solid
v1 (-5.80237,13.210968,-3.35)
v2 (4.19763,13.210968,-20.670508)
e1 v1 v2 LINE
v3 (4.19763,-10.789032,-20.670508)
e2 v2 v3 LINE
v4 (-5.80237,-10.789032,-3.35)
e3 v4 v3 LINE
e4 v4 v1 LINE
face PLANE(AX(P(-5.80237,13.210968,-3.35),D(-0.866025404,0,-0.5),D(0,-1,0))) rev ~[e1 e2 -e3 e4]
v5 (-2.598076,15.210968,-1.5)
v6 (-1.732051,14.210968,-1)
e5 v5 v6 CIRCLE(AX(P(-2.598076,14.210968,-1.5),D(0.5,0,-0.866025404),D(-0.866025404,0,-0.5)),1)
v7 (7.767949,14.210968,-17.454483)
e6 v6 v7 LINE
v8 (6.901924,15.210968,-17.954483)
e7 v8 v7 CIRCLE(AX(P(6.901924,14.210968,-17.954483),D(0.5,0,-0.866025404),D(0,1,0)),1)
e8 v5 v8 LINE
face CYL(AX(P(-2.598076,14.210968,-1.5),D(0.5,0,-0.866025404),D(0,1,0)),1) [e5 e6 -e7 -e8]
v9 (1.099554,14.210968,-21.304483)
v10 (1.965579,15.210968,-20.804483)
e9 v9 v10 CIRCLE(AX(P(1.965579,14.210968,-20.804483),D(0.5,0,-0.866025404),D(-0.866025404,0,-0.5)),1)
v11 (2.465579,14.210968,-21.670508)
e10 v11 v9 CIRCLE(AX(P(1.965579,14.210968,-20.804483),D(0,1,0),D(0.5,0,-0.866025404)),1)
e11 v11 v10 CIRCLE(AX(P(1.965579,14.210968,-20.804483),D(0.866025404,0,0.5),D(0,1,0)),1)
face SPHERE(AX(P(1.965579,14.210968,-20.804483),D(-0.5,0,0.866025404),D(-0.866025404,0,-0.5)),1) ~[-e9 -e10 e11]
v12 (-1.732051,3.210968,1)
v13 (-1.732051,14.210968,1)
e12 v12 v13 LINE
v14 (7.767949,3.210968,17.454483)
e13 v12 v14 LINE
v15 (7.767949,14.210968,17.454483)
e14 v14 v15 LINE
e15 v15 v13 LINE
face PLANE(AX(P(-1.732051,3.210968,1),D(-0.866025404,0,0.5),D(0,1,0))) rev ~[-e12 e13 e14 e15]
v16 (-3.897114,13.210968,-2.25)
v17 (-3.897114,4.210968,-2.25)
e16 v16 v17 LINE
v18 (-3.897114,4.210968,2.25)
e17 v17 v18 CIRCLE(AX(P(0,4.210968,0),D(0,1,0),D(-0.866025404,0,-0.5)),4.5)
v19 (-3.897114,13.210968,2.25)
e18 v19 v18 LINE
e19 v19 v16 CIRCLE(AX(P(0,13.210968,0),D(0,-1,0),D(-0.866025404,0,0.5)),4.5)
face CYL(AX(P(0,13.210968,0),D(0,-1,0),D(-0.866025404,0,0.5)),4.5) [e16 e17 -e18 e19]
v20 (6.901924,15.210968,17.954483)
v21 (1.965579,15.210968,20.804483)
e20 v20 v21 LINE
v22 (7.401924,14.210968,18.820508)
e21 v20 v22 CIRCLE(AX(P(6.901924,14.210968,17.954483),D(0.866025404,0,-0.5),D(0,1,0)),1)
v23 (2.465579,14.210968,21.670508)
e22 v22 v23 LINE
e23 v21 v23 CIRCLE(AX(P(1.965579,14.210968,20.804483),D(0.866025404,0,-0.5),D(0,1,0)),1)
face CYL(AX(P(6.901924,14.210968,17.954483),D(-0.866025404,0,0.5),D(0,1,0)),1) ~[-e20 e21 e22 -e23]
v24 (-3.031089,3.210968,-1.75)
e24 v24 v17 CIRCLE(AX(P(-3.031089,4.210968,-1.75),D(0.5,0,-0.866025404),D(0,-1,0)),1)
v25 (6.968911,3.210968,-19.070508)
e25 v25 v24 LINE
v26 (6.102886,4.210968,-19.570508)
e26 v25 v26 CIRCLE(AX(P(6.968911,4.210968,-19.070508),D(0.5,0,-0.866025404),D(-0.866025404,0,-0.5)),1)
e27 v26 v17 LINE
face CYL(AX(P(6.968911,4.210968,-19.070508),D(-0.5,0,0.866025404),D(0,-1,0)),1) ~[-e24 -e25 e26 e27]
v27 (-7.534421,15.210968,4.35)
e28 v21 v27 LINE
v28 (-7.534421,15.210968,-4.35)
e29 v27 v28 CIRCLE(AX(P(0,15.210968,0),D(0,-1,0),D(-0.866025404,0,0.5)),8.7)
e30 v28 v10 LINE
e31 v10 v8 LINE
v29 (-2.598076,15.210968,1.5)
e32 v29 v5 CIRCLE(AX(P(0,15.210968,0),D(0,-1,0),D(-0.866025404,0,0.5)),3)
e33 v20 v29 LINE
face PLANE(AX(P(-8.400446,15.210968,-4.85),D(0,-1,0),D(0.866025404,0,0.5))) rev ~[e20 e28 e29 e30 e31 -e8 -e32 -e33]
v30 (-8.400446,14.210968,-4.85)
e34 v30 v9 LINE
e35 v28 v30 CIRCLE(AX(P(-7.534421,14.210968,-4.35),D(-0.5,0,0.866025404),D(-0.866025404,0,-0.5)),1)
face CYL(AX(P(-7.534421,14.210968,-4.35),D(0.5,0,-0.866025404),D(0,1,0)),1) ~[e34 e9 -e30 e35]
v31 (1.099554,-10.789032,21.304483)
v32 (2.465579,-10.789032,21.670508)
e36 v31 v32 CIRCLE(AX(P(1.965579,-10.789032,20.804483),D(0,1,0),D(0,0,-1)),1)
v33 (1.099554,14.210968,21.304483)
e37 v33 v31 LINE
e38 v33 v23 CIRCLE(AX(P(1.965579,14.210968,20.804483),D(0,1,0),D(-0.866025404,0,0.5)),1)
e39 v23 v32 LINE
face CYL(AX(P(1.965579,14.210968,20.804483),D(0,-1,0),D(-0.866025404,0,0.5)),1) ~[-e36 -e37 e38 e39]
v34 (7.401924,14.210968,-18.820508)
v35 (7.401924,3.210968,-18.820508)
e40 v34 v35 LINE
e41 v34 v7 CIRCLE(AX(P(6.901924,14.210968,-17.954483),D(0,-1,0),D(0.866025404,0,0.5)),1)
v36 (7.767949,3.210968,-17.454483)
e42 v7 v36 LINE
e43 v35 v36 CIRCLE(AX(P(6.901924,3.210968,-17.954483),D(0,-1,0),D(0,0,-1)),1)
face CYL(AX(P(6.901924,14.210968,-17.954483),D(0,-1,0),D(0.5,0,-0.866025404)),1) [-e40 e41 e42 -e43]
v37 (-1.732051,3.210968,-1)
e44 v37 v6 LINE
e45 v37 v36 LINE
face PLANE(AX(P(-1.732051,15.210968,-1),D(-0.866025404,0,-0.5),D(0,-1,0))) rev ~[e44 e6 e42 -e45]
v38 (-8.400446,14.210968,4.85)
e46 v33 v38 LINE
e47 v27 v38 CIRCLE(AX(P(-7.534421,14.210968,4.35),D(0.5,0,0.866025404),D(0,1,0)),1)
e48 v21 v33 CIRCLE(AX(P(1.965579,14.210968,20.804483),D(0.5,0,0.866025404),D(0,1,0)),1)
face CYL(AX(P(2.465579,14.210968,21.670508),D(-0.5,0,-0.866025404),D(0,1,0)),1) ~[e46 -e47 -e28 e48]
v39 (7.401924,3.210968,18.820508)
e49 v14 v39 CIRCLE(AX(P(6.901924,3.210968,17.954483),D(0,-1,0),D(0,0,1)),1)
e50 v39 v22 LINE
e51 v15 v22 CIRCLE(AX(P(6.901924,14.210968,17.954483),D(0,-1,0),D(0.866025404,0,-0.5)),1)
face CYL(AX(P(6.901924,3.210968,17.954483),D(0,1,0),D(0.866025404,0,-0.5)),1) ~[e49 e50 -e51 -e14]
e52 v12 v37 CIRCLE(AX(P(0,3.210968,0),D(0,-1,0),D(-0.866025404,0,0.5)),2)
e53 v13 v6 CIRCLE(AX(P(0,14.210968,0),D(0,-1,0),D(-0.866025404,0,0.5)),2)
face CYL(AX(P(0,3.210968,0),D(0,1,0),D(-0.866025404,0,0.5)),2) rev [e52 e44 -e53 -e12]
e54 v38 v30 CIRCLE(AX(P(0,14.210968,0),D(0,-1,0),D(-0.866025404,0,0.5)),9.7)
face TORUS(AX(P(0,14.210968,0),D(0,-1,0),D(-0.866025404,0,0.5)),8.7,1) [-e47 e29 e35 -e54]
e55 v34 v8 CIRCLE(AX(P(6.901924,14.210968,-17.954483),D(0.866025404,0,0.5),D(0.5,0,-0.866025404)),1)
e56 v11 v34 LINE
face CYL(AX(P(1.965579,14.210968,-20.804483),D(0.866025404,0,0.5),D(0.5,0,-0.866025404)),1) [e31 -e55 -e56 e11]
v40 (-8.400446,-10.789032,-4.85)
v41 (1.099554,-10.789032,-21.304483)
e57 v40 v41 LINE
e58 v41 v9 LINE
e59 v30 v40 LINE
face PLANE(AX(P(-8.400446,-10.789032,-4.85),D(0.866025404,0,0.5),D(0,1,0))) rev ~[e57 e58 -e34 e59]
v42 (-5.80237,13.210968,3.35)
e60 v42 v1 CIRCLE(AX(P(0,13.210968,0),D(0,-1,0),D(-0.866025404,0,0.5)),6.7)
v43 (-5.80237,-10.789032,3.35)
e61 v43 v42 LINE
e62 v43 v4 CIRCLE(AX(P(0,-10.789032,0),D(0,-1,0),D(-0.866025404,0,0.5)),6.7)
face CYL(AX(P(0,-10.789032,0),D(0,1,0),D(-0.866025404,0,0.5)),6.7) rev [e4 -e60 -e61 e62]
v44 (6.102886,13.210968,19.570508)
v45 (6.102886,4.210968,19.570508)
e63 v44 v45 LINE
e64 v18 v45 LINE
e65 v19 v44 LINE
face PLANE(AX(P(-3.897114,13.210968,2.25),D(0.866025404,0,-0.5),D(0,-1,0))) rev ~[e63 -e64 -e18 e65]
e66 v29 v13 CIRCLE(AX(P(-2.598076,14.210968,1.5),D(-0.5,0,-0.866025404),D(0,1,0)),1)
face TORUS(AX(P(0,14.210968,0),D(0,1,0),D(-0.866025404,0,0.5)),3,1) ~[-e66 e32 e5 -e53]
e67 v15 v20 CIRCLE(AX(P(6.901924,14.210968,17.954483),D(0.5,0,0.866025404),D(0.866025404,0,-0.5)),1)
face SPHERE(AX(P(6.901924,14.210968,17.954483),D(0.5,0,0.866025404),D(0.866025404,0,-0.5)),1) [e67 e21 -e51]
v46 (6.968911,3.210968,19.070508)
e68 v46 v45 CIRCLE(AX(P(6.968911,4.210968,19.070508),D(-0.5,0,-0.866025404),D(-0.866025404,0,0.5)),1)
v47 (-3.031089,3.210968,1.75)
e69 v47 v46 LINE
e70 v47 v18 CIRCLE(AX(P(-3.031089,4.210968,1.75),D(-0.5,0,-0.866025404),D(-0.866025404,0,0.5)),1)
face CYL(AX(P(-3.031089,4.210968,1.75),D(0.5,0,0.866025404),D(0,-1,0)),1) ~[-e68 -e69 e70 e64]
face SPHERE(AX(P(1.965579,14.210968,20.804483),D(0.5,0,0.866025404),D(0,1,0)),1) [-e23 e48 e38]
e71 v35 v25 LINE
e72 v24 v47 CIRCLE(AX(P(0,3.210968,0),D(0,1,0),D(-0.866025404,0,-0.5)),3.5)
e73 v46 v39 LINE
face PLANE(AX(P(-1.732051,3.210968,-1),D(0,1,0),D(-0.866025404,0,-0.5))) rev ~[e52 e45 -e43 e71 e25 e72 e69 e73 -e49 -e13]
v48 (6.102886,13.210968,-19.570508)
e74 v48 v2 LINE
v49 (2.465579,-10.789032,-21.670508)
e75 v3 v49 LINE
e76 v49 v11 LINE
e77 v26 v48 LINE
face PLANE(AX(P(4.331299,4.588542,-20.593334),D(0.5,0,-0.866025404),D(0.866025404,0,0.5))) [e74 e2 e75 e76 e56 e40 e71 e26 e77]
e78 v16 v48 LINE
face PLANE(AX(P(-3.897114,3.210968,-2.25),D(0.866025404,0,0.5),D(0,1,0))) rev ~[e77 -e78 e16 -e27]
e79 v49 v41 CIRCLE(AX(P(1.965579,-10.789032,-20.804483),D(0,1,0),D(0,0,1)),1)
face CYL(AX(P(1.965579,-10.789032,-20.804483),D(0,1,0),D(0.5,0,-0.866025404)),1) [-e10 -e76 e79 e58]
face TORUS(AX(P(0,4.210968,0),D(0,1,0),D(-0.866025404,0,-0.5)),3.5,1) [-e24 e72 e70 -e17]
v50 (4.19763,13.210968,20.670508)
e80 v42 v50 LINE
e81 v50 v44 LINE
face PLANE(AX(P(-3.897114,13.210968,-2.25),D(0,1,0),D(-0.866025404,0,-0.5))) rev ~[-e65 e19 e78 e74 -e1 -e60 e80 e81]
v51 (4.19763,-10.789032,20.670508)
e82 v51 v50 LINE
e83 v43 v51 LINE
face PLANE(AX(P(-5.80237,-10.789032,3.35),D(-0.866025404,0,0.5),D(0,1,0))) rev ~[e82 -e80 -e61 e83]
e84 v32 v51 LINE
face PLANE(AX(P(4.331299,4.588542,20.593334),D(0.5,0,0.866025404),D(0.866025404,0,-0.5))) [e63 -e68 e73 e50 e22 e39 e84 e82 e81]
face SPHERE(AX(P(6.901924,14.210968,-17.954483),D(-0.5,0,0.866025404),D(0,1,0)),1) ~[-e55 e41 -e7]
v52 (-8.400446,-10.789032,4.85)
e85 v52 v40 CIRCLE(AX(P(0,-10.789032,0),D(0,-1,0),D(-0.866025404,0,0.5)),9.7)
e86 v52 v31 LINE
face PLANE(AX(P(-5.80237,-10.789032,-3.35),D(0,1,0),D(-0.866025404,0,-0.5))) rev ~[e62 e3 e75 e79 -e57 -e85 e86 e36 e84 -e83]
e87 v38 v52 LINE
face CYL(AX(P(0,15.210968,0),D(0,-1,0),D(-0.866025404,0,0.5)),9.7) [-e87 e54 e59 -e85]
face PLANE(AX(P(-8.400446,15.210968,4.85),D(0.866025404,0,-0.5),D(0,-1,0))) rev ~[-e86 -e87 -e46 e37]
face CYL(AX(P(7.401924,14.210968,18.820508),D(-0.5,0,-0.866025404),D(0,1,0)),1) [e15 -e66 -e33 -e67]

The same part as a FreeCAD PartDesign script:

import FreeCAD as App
import Part
import Sketcher

V = App.Vector


def edges_at(feature, points):
    """Names of the edges that pass closest to the given points."""
    edges = feature.Shape.Edges
    near = lambda p: min(range(len(edges)), key=lambda i: edges[i].distToShape(Part.Vertex(*p))[0])
    return sorted({f"Edge{near(p) + 1}" for p in points})

doc = App.newDocument("Part")
params = doc.addObject("Spreadsheet::Sheet", "Params")
for row, (alias, value) in enumerate([
    ("sketch1_width", "3 mm"),
    ("sketch1_height", "26 mm"),
    ("sketch1_height2", "24 mm"),
    ("sketch1_height3", "10 mm"),
    ("sketch1_width2", "2.2 mm"),
    ("revolution_angle", "60 deg"),
    ("sketch2_width", "3 mm"),
    ("sketch2_height", "26 mm"),
    ("sketch2_height2", "24 mm"),
    ("sketch2_height3", "10 mm"),
    ("sketch2_width2", "7.7 mm"),
    ("pad1_length", "20 mm"),
    ("sketch3_width", "3 mm"),
    ("sketch3_height", "12 mm"),
    ("sketch3_height2", "10 mm"),
    ("sketch3_height3", "24 mm"),
    ("sketch3_width2", "2.5 mm"),
    ("pad2_length", "20 mm"),
    ("fillet_radius", "1 mm"),
    ("fillet2_radius", "1 mm"),
    ("fillet3_radius", "1 mm"),
    ("fillet4_radius", "1 mm"),
], start=1):
    params.set(f"A{row}", alias)
    params.set(f"B{row}", "=" + value)
    params.setAlias(f"B{row}", alias)

body = doc.addObject("PartDesign::Body", "Body")

# Sketch on an angled plane
sketch1 = body.newObject("Sketcher::SketchObject", "Sketch")
sketch1.Placement = App.Placement(V(0, 0, 0), App.Rotation(V(0.866025404, 0, -0.5), V(0, 1, 0), V(0.5, 0, 0.866025404), "ZXY"))
sketch1.addGeometry([
    Part.LineSegment(V(-9.7, 15.210968, 0), V(-9.7, -10.789032, 0)),  # 0
    Part.LineSegment(V(-9.7, -10.789032, 0), V(-6.7, -10.789032, 0)),  # 1
    Part.LineSegment(V(-6.7, -10.789032, 0), V(-6.7, 13.210968, 0)),  # 2
    Part.LineSegment(V(-6.7, 13.210968, 0), V(-4.5, 13.210968, 0)),  # 3
    Part.LineSegment(V(-4.5, 13.210968, 0), V(-4.5, 3.210968, 0)),  # 4
    Part.LineSegment(V(-4.5, 3.210968, 0), V(-2, 3.210968, 0)),  # 5
    Part.LineSegment(V(-2, 3.210968, 0), V(-2, 15.210968, 0)),  # 6
    Part.LineSegment(V(-2, 15.210968, 0), V(-9.7, 15.210968, 0)),  # 7
], False)
sketch1.addConstraint([
    Sketcher.Constraint("Coincident", 0, 2, 1, 1),
    Sketcher.Constraint("Coincident", 1, 2, 2, 1),
    Sketcher.Constraint("Coincident", 2, 2, 3, 1),
    Sketcher.Constraint("Coincident", 3, 2, 4, 1),
    Sketcher.Constraint("Coincident", 4, 2, 5, 1),
    Sketcher.Constraint("Coincident", 5, 2, 6, 1),
    Sketcher.Constraint("Coincident", 6, 2, 7, 1),
    Sketcher.Constraint("Coincident", 7, 2, 0, 1),
    Sketcher.Constraint("Vertical", 0),
    Sketcher.Constraint("Horizontal", 1),
    Sketcher.Constraint("Vertical", 2),
    Sketcher.Constraint("Horizontal", 3),
    Sketcher.Constraint("Vertical", 4),
    Sketcher.Constraint("Horizontal", 5),
    Sketcher.Constraint("Vertical", 6),
    Sketcher.Constraint("Horizontal", 7),
    Sketcher.Constraint("DistanceX", 1, 1, 1, 2, 3.0),
    Sketcher.Constraint("DistanceY", 0, 2, 0, 1, 26.0),
    Sketcher.Constraint("DistanceY", 2, 1, 2, 2, 24.0),
    Sketcher.Constraint("DistanceY", 4, 2, 4, 1, 10.0),
    Sketcher.Constraint("DistanceX", 3, 1, 3, 2, 2.2),
    Sketcher.Constraint("DistanceX", 5, 1, 5, 2, 2.5),
    Sketcher.Constraint("DistanceX", 5, 2, -1, 1, 2.0),
    Sketcher.Constraint("DistanceY", 0, 2, -1, 1, 10.789032),
])
sketch1.setExpression("Constraints[16]", "Params.sketch1_width")
sketch1.setExpression("Constraints[17]", "Params.sketch1_height")
sketch1.setExpression("Constraints[18]", "Params.sketch1_height2")
sketch1.setExpression("Constraints[19]", "Params.sketch1_height3")
sketch1.setExpression("Constraints[20]", "Params.sketch1_width2")
revolution = body.newObject("PartDesign::Revolution", "Revolution")
revolution.Profile = sketch1
revolution.ReferenceAxis = (sketch1, ["V_Axis"])
revolution.setExpression("Angle", "Params.revolution_angle")
revolution.Reversed = True

# Sketch on an angled plane
sketch2 = body.newObject("Sketcher::SketchObject", "Sketch001")
sketch2.Placement = App.Placement(V(0, 0, 0), App.Rotation(V(0.866025404, 0, -0.5), V(0, 1, 0), V(0.5, 0, 0.866025404), "ZXY"))
sketch2.addGeometry([
    Part.LineSegment(V(-2, 15.210968, 0), V(-9.7, 15.210968, 0)),  # 0
    Part.LineSegment(V(-9.7, 15.210968, 0), V(-9.7, -10.789032, 0)),  # 1
    Part.LineSegment(V(-9.7, -10.789032, 0), V(-6.7, -10.789032, 0)),  # 2
    Part.LineSegment(V(-6.7, -10.789032, 0), V(-6.7, 13.210968, 0)),  # 3
    Part.LineSegment(V(-6.7, 13.210968, 0), V(-4.5, 13.210968, 0)),  # 4
    Part.LineSegment(V(-4.5, 13.210968, 0), V(-4.5, 3.210968, 0)),  # 5
    Part.LineSegment(V(-4.5, 3.210968, 0), V(-2, 3.210968, 0)),  # 6
    Part.LineSegment(V(-2, 3.210968, 0), V(-2, 15.210968, 0)),  # 7
], False)
sketch2.addConstraint([
    Sketcher.Constraint("Coincident", 0, 2, 1, 1),
    Sketcher.Constraint("Coincident", 1, 2, 2, 1),
    Sketcher.Constraint("Coincident", 2, 2, 3, 1),
    Sketcher.Constraint("Coincident", 3, 2, 4, 1),
    Sketcher.Constraint("Coincident", 4, 2, 5, 1),
    Sketcher.Constraint("Coincident", 5, 2, 6, 1),
    Sketcher.Constraint("Coincident", 6, 2, 7, 1),
    Sketcher.Constraint("Coincident", 7, 2, 0, 1),
    Sketcher.Constraint("Horizontal", 0),
    Sketcher.Constraint("Vertical", 1),
    Sketcher.Constraint("Horizontal", 2),
    Sketcher.Constraint("Vertical", 3),
    Sketcher.Constraint("Horizontal", 4),
    Sketcher.Constraint("Vertical", 5),
    Sketcher.Constraint("Horizontal", 6),
    Sketcher.Constraint("Vertical", 7),
    Sketcher.Constraint("DistanceX", 2, 1, 2, 2, 3.0),
    Sketcher.Constraint("DistanceY", 1, 2, 1, 1, 26.0),
    Sketcher.Constraint("DistanceY", 3, 1, 3, 2, 24.0),
    Sketcher.Constraint("DistanceY", 5, 2, 5, 1, 10.0),
    Sketcher.Constraint("DistanceX", 0, 2, 0, 1, 7.7),
    Sketcher.Constraint("DistanceX", 4, 1, 4, 2, 2.2),
    Sketcher.Constraint("DistanceX", 6, 2, -1, 1, 2.0),
    Sketcher.Constraint("DistanceY", -1, 1, 0, 2, 15.210968),
])
sketch2.setExpression("Constraints[16]", "Params.sketch2_width")
sketch2.setExpression("Constraints[17]", "Params.sketch2_height")
sketch2.setExpression("Constraints[18]", "Params.sketch2_height2")
sketch2.setExpression("Constraints[19]", "Params.sketch2_height3")
sketch2.setExpression("Constraints[20]", "Params.sketch2_width2")
pad1 = body.newObject("PartDesign::Pad", "Pad")
pad1.Profile = sketch2
pad1.setExpression("Length", "Params.pad1_length")

# Sketch on an angled plane
sketch3 = body.newObject("Sketcher::SketchObject", "Sketch002")
sketch3.Placement = App.Placement(V(0, 0, 0), App.Rotation(V(0.866025404, 0, 0.5), V(0, -1, 0), V(0.5, 0, -0.866025404), "ZXY"))
sketch3.addGeometry([
    Part.LineSegment(V(-2, -15.210968, 0), V(-2, -3.210968, 0)),  # 0
    Part.LineSegment(V(-2, -3.210968, 0), V(-4.5, -3.210968, 0)),  # 1
    Part.LineSegment(V(-4.5, -3.210968, 0), V(-4.5, -13.210968, 0)),  # 2
    Part.LineSegment(V(-4.5, -13.210968, 0), V(-6.7, -13.210968, 0)),  # 3
    Part.LineSegment(V(-6.7, -13.210968, 0), V(-6.7, 10.789032, 0)),  # 4
    Part.LineSegment(V(-6.7, 10.789032, 0), V(-9.7, 10.789032, 0)),  # 5
    Part.LineSegment(V(-9.7, 10.789032, 0), V(-9.7, -15.210968, 0)),  # 6
    Part.LineSegment(V(-9.7, -15.210968, 0), V(-2, -15.210968, 0)),  # 7
], False)
sketch3.addConstraint([
    Sketcher.Constraint("Coincident", 0, 2, 1, 1),
    Sketcher.Constraint("Coincident", 1, 2, 2, 1),
    Sketcher.Constraint("Coincident", 2, 2, 3, 1),
    Sketcher.Constraint("Coincident", 3, 2, 4, 1),
    Sketcher.Constraint("Coincident", 4, 2, 5, 1),
    Sketcher.Constraint("Coincident", 5, 2, 6, 1),
    Sketcher.Constraint("Coincident", 6, 2, 7, 1),
    Sketcher.Constraint("Coincident", 7, 2, 0, 1),
    Sketcher.Constraint("Vertical", 0),
    Sketcher.Constraint("Horizontal", 1),
    Sketcher.Constraint("Vertical", 2),
    Sketcher.Constraint("Horizontal", 3),
    Sketcher.Constraint("Vertical", 4),
    Sketcher.Constraint("Horizontal", 5),
    Sketcher.Constraint("Vertical", 6),
    Sketcher.Constraint("Horizontal", 7),
    Sketcher.Constraint("DistanceX", 5, 2, 5, 1, 3.0),
    Sketcher.Constraint("DistanceY", 0, 1, 0, 2, 12.0),
    Sketcher.Constraint("DistanceY", 2, 2, 2, 1, 10.0),
    Sketcher.Constraint("DistanceY", 4, 1, 4, 2, 24.0),
    Sketcher.Constraint("DistanceX", 1, 2, 1, 1, 2.5),
    Sketcher.Constraint("DistanceX", 3, 2, 3, 1, 2.2),
    Sketcher.Constraint("DistanceX", 0, 2, -1, 1, 2.0),
    Sketcher.Constraint("DistanceY", 0, 2, -1, 1, 3.210968),
])
sketch3.setExpression("Constraints[16]", "Params.sketch3_width")
sketch3.setExpression("Constraints[17]", "Params.sketch3_height")
sketch3.setExpression("Constraints[18]", "Params.sketch3_height2")
sketch3.setExpression("Constraints[19]", "Params.sketch3_height3")
sketch3.setExpression("Constraints[20]", "Params.sketch3_width2")
pad2 = body.newObject("PartDesign::Pad", "Pad001")
pad2.Profile = sketch3
pad2.setExpression("Length", "Params.pad2_length")
doc.recompute()

fillet = body.newObject("PartDesign::Fillet", "Fillet")
fillet.Base = (pad2, edges_at(pad2, [(1.103, 3.211, 10.91), (-3.4, 15.211, -13.51)]))
fillet.setExpression("Radius", "Params.fillet_radius")
doc.recompute()

fillet2 = body.newObject("PartDesign::Fillet", "Fillet001")
fillet2.Base = (fillet, edges_at(fillet, [(3.268, 15.211, -9.66)]))
fillet2.setExpression("Radius", "Params.fillet2_radius")
doc.recompute()

fillet3 = body.newObject("PartDesign::Fillet", "Fillet002")
fillet3.Base = (fillet2, edges_at(fillet2, [(4.934, 15.211, 20.246)]))
fillet3.setExpression("Radius", "Params.fillet3_radius")
doc.recompute()

fillet4 = body.newObject("PartDesign::Fillet", "Fillet003")
fillet4.Base = (fillet3, edges_at(fillet3, [(1.6, 1.711, -22.171)]))
fillet4.setExpression("Radius", "Params.fillet4_radius")

doc.recompute()
